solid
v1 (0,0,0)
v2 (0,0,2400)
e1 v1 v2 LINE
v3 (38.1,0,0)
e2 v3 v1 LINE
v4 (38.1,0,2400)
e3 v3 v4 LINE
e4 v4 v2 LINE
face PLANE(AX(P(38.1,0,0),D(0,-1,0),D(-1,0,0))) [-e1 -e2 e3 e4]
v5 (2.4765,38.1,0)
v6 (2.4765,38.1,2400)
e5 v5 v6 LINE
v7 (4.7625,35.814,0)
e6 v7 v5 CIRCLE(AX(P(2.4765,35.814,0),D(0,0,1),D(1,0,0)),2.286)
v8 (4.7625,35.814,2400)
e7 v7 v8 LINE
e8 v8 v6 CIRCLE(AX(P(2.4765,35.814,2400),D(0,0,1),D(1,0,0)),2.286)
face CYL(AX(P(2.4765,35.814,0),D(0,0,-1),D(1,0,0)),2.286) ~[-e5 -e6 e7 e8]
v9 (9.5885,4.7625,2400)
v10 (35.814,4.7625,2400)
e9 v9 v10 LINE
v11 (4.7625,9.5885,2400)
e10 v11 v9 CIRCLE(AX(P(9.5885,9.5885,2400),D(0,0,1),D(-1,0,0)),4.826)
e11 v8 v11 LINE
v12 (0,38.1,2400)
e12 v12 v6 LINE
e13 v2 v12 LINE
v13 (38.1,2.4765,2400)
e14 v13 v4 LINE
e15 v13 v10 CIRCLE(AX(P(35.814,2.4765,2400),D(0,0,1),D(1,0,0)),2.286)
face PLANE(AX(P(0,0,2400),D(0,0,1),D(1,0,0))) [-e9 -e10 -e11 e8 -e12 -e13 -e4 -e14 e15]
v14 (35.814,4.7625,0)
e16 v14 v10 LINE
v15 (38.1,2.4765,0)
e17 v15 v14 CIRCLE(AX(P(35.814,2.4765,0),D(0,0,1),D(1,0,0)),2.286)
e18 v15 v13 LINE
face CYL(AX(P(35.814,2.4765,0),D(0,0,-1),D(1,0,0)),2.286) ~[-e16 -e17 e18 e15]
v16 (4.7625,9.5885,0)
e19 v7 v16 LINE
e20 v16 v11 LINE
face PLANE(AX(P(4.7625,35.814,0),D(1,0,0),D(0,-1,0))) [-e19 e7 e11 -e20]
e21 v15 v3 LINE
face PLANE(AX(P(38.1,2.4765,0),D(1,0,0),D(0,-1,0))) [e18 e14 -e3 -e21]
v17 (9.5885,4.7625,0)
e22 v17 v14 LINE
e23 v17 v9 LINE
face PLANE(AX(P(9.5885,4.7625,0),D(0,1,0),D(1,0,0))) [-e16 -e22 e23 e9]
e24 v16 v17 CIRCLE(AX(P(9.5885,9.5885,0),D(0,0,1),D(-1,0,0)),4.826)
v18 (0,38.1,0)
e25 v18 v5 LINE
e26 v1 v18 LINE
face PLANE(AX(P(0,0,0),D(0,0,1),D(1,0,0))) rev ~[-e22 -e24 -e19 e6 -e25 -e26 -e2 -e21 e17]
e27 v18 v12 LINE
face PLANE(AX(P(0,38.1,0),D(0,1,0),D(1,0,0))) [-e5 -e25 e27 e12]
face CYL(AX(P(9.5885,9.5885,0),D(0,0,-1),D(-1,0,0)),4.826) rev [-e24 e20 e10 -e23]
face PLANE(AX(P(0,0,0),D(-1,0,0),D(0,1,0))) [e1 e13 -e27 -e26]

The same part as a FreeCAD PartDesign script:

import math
import FreeCAD as App
import Part
import Sketcher
from FreeCAD import Vector
Q = App.Units.Quantity

doc = App.newDocument("Part")
body = doc.addObject("PartDesign::Body", "Body")

sketch1 = body.newObject("Sketcher::SketchObject", "Sketch")
sketch1.AttachmentSupport = (doc.getObject("XY_Plane"), [""])
sketch1.MapMode = "FlatFace"
sketch1.addGeometry(Part.LineSegment(Vector(0, 0, 0), Vector(38.1, 0, 0)), False)
sketch1.addGeometry(Part.LineSegment(Vector(38.1, 0, 0), Vector(38.1, 2.5, 0)), False)
sketch1.addGeometry(Part.ArcOfCircle(Part.Circle(Vector(35.8, 2.5, 0), Vector(0, 0, 1), 2.3), math.radians(0), math.radians(90)), False)
sketch1.addGeometry(Part.LineSegment(Vector(35.8, 4.8, 0), Vector(9.6, 4.8, 0)), False)
sketch1.addGeometry(Part.ArcOfCircle(Part.Circle(Vector(9.6, 9.6, 0), Vector(0, 0, 1), 4.8), math.radians(180), math.radians(270)), False)
sketch1.addGeometry(Part.LineSegment(Vector(4.8, 9.6, 0), Vector(4.8, 35.8, 0)), False)
sketch1.addGeometry(Part.ArcOfCircle(Part.Circle(Vector(2.5, 35.8, 0), Vector(0, 0, 1), 2.3), math.radians(0), math.radians(90)), False)
sketch1.addGeometry(Part.LineSegment(Vector(2.5, 38.1, 0), Vector(0, 38.1, 0)), False)
sketch1.addGeometry(Part.LineSegment(Vector(0, 38.1, 0), Vector(0, 0, 0)), False)
sketch1.addConstraint(Sketcher.Constraint("Coincident", 0, 2, 1, 1))
sketch1.addConstraint(Sketcher.Constraint("Tangent", 1, 2, 2, 1))
sketch1.addConstraint(Sketcher.Constraint("Tangent", 2, 2, 3, 1))
sketch1.addConstraint(Sketcher.Constraint("Tangent", 3, 2, 4, 2))
sketch1.addConstraint(Sketcher.Constraint("Tangent", 4, 1, 5, 1))
sketch1.addConstraint(Sketcher.Constraint("Tangent", 5, 2, 6, 1))
sketch1.addConstraint(Sketcher.Constraint("Tangent", 6, 2, 7, 1))
sketch1.addConstraint(Sketcher.Constraint("Coincident", 7, 2, 8, 1))
sketch1.addConstraint(Sketcher.Constraint("Coincident", 8, 2, 0, 1))
sketch1.addConstraint(Sketcher.Constraint("Horizontal", 0))
sketch1.addConstraint(Sketcher.Constraint("Vertical", 1))
sketch1.addConstraint(Sketcher.Constraint("Horizontal", 3))
sketch1.addConstraint(Sketcher.Constraint("Vertical", 5))
sketch1.addConstraint(Sketcher.Constraint("Horizontal", 7))
sketch1.addConstraint(Sketcher.Constraint("Vertical", 8))
sketch1.addConstraint(Sketcher.Constraint("Coincident", 8, 2, -1, 1))
sketch1.addConstraint(Sketcher.Constraint("Equal", 2, 6))
sketch1.addConstraint(Sketcher.Constraint("Equal", 7, 1))
sketch1.addConstraint(Sketcher.Constraint("Equal", 3, 5))
sketch1.addConstraint(Sketcher.Constraint("Radius", 2, Q("0.09 in")))
sketch1.addConstraint(Sketcher.Constraint("Radius", 4, Q("0.19 in")))
sketch1.addConstraint(Sketcher.Constraint("DistanceX", 0, 1, 0, 2, Q("1.5 in")))
sketch1.addConstraint(Sketcher.Constraint("DistanceY", -1, 1, 2, 2, Q("0.1875 in")))
pad1 = body.newObject("PartDesign::Pad", "Pad")
pad1.Profile = sketch1
pad1.Length = Q("94.488189 in")

doc.recompute()
